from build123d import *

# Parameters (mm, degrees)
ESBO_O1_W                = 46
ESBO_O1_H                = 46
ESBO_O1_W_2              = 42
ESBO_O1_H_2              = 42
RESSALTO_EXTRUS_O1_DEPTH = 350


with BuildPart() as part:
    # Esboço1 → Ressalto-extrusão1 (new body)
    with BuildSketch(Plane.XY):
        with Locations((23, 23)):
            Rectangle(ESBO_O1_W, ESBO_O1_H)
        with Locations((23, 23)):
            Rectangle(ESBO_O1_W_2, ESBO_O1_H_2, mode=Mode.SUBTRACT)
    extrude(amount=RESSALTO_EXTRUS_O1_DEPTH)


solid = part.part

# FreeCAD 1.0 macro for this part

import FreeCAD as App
import Part
import Sketcher
from FreeCAD import Vector
Q = App.Units.Quantity


def add_polygon(sketch, points):
    """Adds a closed chain of lines whose ends are joined by coincident constraints."""
    first, n = sketch.GeometryCount, len(points)
    for a, b in zip(points, points[1:] + points[:1]):
        sketch.addGeometry(Part.LineSegment(App.Vector(*a, 0), App.Vector(*b, 0)), False)
    for i in range(n):
        sketch.addConstraint(Sketcher.Constraint("Coincident", first + i, 2, first + (i + 1) % n, 1))

doc = App.newDocument("Part")
body = doc.addObject("PartDesign::Body", "Body")

# Sketch on XY plane
sketch1 = doc.addObject("Sketcher::SketchObject", "Sketch")
body.addObject(sketch1)
sketch1.AttachmentSupport = (doc.XY_Plane, [""])
sketch1.MapMode = "FlatFace"
add_polygon(sketch1, [(0, 46), (0, 0), (46, 0), (46, 46)])  # lines 0-3
add_polygon(sketch1, [(44, 2), (2, 2), (2, 44), (44, 44)])  # lines 4-7
sketch1.addConstraint([
    Sketcher.Constraint("Vertical", 0),
    Sketcher.Constraint("Horizontal", 1),
    Sketcher.Constraint("Vertical", 2),
    Sketcher.Constraint("Horizontal", 3),
    Sketcher.Constraint("Horizontal", 4),
    Sketcher.Constraint("Vertical", 5),
    Sketcher.Constraint("Horizontal", 6),
    Sketcher.Constraint("Vertical", 7),
    Sketcher.Constraint("Coincident", 0, 2, -1, 1),
    Sketcher.Constraint("Equal", 3, 0),
    Sketcher.Constraint("Equal", 6, 5),
    Sketcher.Constraint("DistanceX", 1, 1, 1, 2, Q("46 mm")),
    Sketcher.Constraint("DistanceX", 4, 2, 4, 1, Q("42 mm")),
    Sketcher.Constraint("DistanceX", -1, 1, 4, 2, Q("2 mm")),
    Sketcher.Constraint("DistanceY", -1, 1, 4, 2, Q("2 mm")),
])
pad1 = doc.addObject("PartDesign::Pad", "Pad")
body.addObject(pad1)
pad1.Profile = sketch1
pad1.Length = 350

doc.recompute()
